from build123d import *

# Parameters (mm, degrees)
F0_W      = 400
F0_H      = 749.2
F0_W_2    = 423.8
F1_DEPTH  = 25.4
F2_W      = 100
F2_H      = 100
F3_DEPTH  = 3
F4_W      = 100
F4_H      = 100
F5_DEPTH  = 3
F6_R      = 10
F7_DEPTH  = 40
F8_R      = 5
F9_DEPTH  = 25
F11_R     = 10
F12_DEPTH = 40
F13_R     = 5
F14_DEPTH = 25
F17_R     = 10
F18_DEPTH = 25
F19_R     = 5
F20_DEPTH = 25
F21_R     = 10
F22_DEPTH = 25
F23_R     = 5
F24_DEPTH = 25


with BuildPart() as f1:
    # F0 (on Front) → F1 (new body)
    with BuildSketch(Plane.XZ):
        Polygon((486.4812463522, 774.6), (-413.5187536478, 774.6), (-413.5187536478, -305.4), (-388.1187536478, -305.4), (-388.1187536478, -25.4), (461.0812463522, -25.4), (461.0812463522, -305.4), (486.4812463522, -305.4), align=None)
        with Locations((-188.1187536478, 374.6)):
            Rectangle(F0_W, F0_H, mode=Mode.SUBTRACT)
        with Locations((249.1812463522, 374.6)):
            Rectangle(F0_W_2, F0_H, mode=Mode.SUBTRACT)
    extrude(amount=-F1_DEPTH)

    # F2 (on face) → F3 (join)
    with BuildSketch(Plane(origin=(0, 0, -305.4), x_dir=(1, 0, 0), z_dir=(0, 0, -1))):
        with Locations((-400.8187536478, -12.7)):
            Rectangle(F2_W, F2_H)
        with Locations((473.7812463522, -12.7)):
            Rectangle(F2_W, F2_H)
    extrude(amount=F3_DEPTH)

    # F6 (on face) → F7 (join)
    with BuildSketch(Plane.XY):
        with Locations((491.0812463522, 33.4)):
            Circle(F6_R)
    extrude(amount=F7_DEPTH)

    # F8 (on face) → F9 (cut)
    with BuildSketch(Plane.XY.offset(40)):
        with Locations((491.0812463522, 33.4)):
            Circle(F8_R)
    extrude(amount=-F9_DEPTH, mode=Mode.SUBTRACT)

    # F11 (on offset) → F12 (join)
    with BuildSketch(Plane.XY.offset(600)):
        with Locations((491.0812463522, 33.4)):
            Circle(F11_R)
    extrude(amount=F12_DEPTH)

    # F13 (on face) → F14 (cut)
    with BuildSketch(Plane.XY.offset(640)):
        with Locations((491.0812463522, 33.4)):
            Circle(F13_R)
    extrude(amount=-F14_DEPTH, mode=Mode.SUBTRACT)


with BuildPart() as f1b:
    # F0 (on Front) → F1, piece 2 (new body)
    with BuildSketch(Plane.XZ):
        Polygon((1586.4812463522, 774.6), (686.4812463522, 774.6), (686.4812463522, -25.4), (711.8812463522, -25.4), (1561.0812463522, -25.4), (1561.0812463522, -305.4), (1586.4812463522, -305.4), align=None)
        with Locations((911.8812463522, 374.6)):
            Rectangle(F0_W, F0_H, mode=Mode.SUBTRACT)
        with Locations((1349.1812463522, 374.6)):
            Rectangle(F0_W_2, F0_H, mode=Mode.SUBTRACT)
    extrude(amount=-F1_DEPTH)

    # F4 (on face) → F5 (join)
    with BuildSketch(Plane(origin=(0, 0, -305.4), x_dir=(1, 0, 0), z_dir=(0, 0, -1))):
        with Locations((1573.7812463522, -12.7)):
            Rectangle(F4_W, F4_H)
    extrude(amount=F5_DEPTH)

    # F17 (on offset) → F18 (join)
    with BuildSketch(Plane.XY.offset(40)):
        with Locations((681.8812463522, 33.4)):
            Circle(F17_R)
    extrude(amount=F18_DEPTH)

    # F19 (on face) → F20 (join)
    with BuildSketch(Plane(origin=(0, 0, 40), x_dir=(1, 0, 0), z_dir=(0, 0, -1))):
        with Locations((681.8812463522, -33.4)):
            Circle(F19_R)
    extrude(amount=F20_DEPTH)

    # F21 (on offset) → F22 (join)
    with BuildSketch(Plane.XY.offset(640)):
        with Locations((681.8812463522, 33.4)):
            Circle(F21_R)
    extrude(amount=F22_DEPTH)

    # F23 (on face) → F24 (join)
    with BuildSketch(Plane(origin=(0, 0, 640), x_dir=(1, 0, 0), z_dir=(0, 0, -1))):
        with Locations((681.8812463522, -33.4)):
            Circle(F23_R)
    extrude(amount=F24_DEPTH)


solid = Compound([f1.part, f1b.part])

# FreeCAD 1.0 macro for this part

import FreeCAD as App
import Part
import Sketcher

V = App.Vector

doc = App.newDocument("Part")
body = doc.addObject("PartDesign::Body", "Body")

sketch1 = body.newObject("Sketcher::SketchObject", "Sketch")
sketch1.AttachmentSupport = (doc.getObject("XZ_Plane"), [""])
sketch1.MapMode = "FlatFace"
sketch1.addGeometry(Part.LineSegment(V(486, 775, 0), V(-414, 775, 0)), False)
sketch1.addGeometry(Part.LineSegment(V(-414, 775, 0), V(-414, -305, 0)), False)
sketch1.addGeometry(Part.LineSegment(V(-414, -305, 0), V(-388, -305, 0)), False)
sketch1.addGeometry(Part.LineSegment(V(-388, -305, 0), V(-388, -25, 0)), False)
sketch1.addGeometry(Part.LineSegment(V(-388, -25, 0), V(461, -25, 0)), False)
sketch1.addGeometry(Part.LineSegment(V(461, -25, 0), V(461, -305, 0)), False)
sketch1.addGeometry(Part.LineSegment(V(461, -305, 0), V(486, -305, 0)), False)
sketch1.addGeometry(Part.LineSegment(V(486, -305, 0), V(486, 775, 0)), False)
sketch1.addGeometry(Part.LineSegment(V(12, 0, 0), V(-388, 0, 0)), False)
sketch1.addGeometry(Part.LineSegment(V(-388, 0, 0), V(-388, 749, 0)), False)
sketch1.addGeometry(Part.LineSegment(V(-388, 749, 0), V(12, 749, 0)), False)
sketch1.addGeometry(Part.LineSegment(V(12, 749, 0), V(12, 0, 0)), False)
sketch1.addGeometry(Part.LineSegment(V(461, 0, 0), V(37, 0, 0)), False)
sketch1.addGeometry(Part.LineSegment(V(37, 0, 0), V(37, 749, 0)), False)
sketch1.addGeometry(Part.LineSegment(V(37, 749, 0), V(461, 749, 0)), False)
sketch1.addGeometry(Part.LineSegment(V(461, 749, 0), V(461, 0, 0)), False)
sketch1.addConstraint(Sketcher.Constraint("Coincident", 0, 2, 1, 1))
sketch1.addConstraint(Sketcher.Constraint("Coincident", 1, 2, 2, 1))
sketch1.addConstraint(Sketcher.Constraint("Coincident", 2, 2, 3, 1))
sketch1.addConstraint(Sketcher.Constraint("Coincident", 3, 2, 4, 1))
sketch1.addConstraint(Sketcher.Constraint("Coincident", 4, 2, 5, 1))
sketch1.addConstraint(Sketcher.Constraint("Coincident", 5, 2, 6, 1))
sketch1.addConstraint(Sketcher.Constraint("Coincident", 6, 2, 7, 1))
sketch1.addConstraint(Sketcher.Constraint("Coincident", 7, 2, 0, 1))
sketch1.addConstraint(Sketcher.Constraint("Coincident", 8, 2, 9, 1))
sketch1.addConstraint(Sketcher.Constraint("Coincident", 9, 2, 10, 1))
sketch1.addConstraint(Sketcher.Constraint("Coincident", 10, 2, 11, 1))
sketch1.addConstraint(Sketcher.Constraint("Coincident", 11, 2, 8, 1))
sketch1.addConstraint(Sketcher.Constraint("Coincident", 12, 2, 13, 1))
sketch1.addConstraint(Sketcher.Constraint("Coincident", 13, 2, 14, 1))
sketch1.addConstraint(Sketcher.Constraint("Coincident", 14, 2, 15, 1))
sketch1.addConstraint(Sketcher.Constraint("Coincident", 15, 2, 12, 1))
sketch1.addConstraint(Sketcher.Constraint("Horizontal", 0))
sketch1.addConstraint(Sketcher.Constraint("Vertical", 1))
sketch1.addConstraint(Sketcher.Constraint("Horizontal", 2))
sketch1.addConstraint(Sketcher.Constraint("Vertical", 3))
sketch1.addConstraint(Sketcher.Constraint("Horizontal", 4))
sketch1.addConstraint(Sketcher.Constraint("Vertical", 5))
sketch1.addConstraint(Sketcher.Constraint("Horizontal", 6))
sketch1.addConstraint(Sketcher.Constraint("Vertical", 7))
sketch1.addConstraint(Sketcher.Constraint("Horizontal", 8))
sketch1.addConstraint(Sketcher.Constraint("Vertical", 9))
sketch1.addConstraint(Sketcher.Constraint("Horizontal", 10))
sketch1.addConstraint(Sketcher.Constraint("Vertical", 11))
sketch1.addConstraint(Sketcher.Constraint("Horizontal", 12))
sketch1.addConstraint(Sketcher.Constraint("Vertical", 13))
sketch1.addConstraint(Sketcher.Constraint("Horizontal", 14))
sketch1.addConstraint(Sketcher.Constraint("Vertical", 15))
sketch1.addConstraint(Sketcher.Constraint("PointOnObject", 8, 2, -1))
sketch1.addConstraint(Sketcher.Constraint("PointOnObject", 12, 2, -1))
sketch1.addConstraint(Sketcher.Constraint("Horizontal", 2, 2, 5, 2))
sketch1.addConstraint(Sketcher.Constraint("Horizontal", 10, 2, 13, 2))
sketch1.addConstraint(Sketcher.Constraint("Vertical", 3, 2, 8, 2))
sketch1.addConstraint(Sketcher.Constraint("Vertical", 5, 2, 14, 2))
sketch1.addConstraint(Sketcher.Constraint("Equal", 2, 6))
sketch1.addConstraint(Sketcher.Constraint("DistanceX", 0, 2, 0, 1, 900.0))
sketch1.addConstraint(Sketcher.Constraint("DistanceX", 8, 2, 8, 1, 400.0))
sketch1.addConstraint(Sketcher.Constraint("DistanceY", 1, 2, 1, 1, 1080.0))
sketch1.addConstraint(Sketcher.Constraint("DistanceY", 3, 1, 3, 2, 280.0))
sketch1.addConstraint(Sketcher.Constraint("DistanceX", 2, 1, 2, 2, 25.4))
sketch1.addConstraint(Sketcher.Constraint("DistanceX", 12, 2, 12, 1, 423.8))
sketch1.addConstraint(Sketcher.Constraint("DistanceY", 9, 1, 9, 2, 749.2))
sketch1.addConstraint(Sketcher.Constraint("DistanceY", -1, 1, 0, 2, 774.6))
sketch1.addConstraint(Sketcher.Constraint("DistanceX", 0, 2, -1, 1, 413.518754))
pad1 = body.newObject("PartDesign::Pad", "Pad")
pad1.Profile = sketch1
pad1.Length = 25.4
pad1.Reversed = True

sketch2 = body.newObject("Sketcher::SketchObject", "Sketch001")
sketch2.AttachmentSupport = (doc.getObject("XY_Plane"), [""])
sketch2.MapMode = "FlatFace"
sketch2.AttachmentOffset = App.Placement(V(0, 0, -305.4), App.Rotation())
sketch2.addGeometry(Part.LineSegment(V(-451, -37, 0), V(-451, 63, 0)), False)
sketch2.addGeometry(Part.LineSegment(V(-451, 63, 0), V(-351, 63, 0)), False)
sketch2.addGeometry(Part.LineSegment(V(-351, 63, 0), V(-351, -37, 0)), False)
sketch2.addGeometry(Part.LineSegment(V(-351, -37, 0), V(-451, -37, 0)), False)
sketch2.addGeometry(Part.LineSegment(V(424, -37, 0), V(424, 63, 0)), False)
sketch2.addGeometry(Part.LineSegment(V(424, 63, 0), V(524, 63, 0)), False)
sketch2.addGeometry(Part.LineSegment(V(524, 63, 0), V(524, -37, 0)), False)
sketch2.addGeometry(Part.LineSegment(V(524, -37, 0), V(424, -37, 0)), False)
sketch2.addConstraint(Sketcher.Constraint("Coincident", 0, 2, 1, 1))
sketch2.addConstraint(Sketcher.Constraint("Coincident", 1, 2, 2, 1))
sketch2.addConstraint(Sketcher.Constraint("Coincident", 2, 2, 3, 1))
sketch2.addConstraint(Sketcher.Constraint("Coincident", 3, 2, 0, 1))
sketch2.addConstraint(Sketcher.Constraint("Coincident", 4, 2, 5, 1))
sketch2.addConstraint(Sketcher.Constraint("Coincident", 5, 2, 6, 1))
sketch2.addConstraint(Sketcher.Constraint("Coincident", 6, 2, 7, 1))
sketch2.addConstraint(Sketcher.Constraint("Coincident", 7, 2, 4, 1))
sketch2.addConstraint(Sketcher.Constraint("Vertical", 0))
sketch2.addConstraint(Sketcher.Constraint("Horizontal", 1))
sketch2.addConstraint(Sketcher.Constraint("Vertical", 2))
sketch2.addConstraint(Sketcher.Constraint("Horizontal", 3))
sketch2.addConstraint(Sketcher.Constraint("Vertical", 4))
sketch2.addConstraint(Sketcher.Constraint("Horizontal", 5))
sketch2.addConstraint(Sketcher.Constraint("Vertical", 6))
sketch2.addConstraint(Sketcher.Constraint("Horizontal", 7))
sketch2.addConstraint(Sketcher.Constraint("Horizontal", 1, 2, 4, 2))
sketch2.addConstraint(Sketcher.Constraint("Horizontal", 3, 2, 6, 2))
sketch2.addConstraint(Sketcher.Constraint("Equal", 3, 5))
sketch2.addConstraint(Sketcher.Constraint("Equal", 7, 0))
sketch2.addConstraint(Sketcher.Constraint("DistanceX", 1, 1, 1, 2, 100.0))
sketch2.addConstraint(Sketcher.Constraint("DistanceY", -1, 1, 0, 2, 62.7))
sketch2.addConstraint(Sketcher.Constraint("DistanceX", 1, 2, 4, 2, 774.6))
sketch2.addConstraint(Sketcher.Constraint("DistanceX", 0, 2, -1, 1, 450.818754))
pad2 = body.newObject("PartDesign::Pad", "Pad001")
pad2.Profile = sketch2
pad2.Length = 3
pad2.Reversed = True

sketch3 = body.newObject("Sketcher::SketchObject", "Sketch002")
sketch3.AttachmentSupport = (doc.getObject("XY_Plane"), [""])
sketch3.MapMode = "FlatFace"
sketch3.addGeometry(Part.Circle(V(491, 33, 0), V(0, 0, 1), 10), False)
sketch3.addConstraint(Sketcher.Constraint("Diameter", 0, 20.0))
sketch3.addConstraint(Sketcher.Constraint("DistanceY", -1, 1, 0, 3, 33.4))
sketch3.addConstraint(Sketcher.Constraint("DistanceX", -1, 1, 0, 3, 491.081246))
pad3 = body.newObject("PartDesign::Pad", "Pad002")
pad3.Profile = sketch3
pad3.Length = 40

sketch4 = body.newObject("Sketcher::SketchObject", "Sketch003")
sketch4.AttachmentSupport = (doc.getObject("XY_Plane"), [""])
sketch4.MapMode = "FlatFace"
sketch4.AttachmentOffset = App.Placement(V(0, 0, 40), App.Rotation())
sketch4.addGeometry(Part.Circle(V(491, 33, 0), V(0, 0, 1), 5), False)
sketch4.addConstraint(Sketcher.Constraint("Diameter", 0, 10.0))
sketch4.addConstraint(Sketcher.Constraint("DistanceY", -1, 1, 0, 3, 33.4))
sketch4.addConstraint(Sketcher.Constraint("DistanceX", -1, 1, 0, 3, 491.081246))
pocket1 = body.newObject("PartDesign::Pocket", "Pocket")
pocket1.Profile = sketch4
pocket1.Length = 25

sketch5 = body.newObject("Sketcher::SketchObject", "Sketch004")
sketch5.AttachmentSupport = (doc.getObject("XY_Plane"), [""])
sketch5.MapMode = "FlatFace"
sketch5.AttachmentOffset = App.Placement(V(0, 0, 600), App.Rotation())
sketch5.addGeometry(Part.Circle(V(491, 33, 0), V(0, 0, 1), 10), False)
sketch5.addConstraint(Sketcher.Constraint("Diameter", 0, 20.0))
sketch5.addConstraint(Sketcher.Constraint("DistanceY", -1, 1, 0, 3, 33.4))
sketch5.addConstraint(Sketcher.Constraint("DistanceX", -1, 1, 0, 3, 491.081246))
pad4 = body.newObject("PartDesign::Pad", "Pad003")
pad4.Profile = sketch5
pad4.Length = 40

sketch6 = body.newObject("Sketcher::SketchObject", "Sketch005")
sketch6.AttachmentSupport = (doc.getObject("XY_Plane"), [""])
sketch6.MapMode = "FlatFace"
sketch6.AttachmentOffset = App.Placement(V(0, 0, 640), App.Rotation())
sketch6.addGeometry(Part.Circle(V(491, 33, 0), V(0, 0, 1), 5), False)
sketch6.addConstraint(Sketcher.Constraint("Diameter", 0, 10.0))
sketch6.addConstraint(Sketcher.Constraint("DistanceY", -1, 1, 0, 3, 33.4))
sketch6.addConstraint(Sketcher.Constraint("DistanceX", -1, 1, 0, 3, 491.081246))
pocket2 = body.newObject("PartDesign::Pocket", "Pocket001")
pocket2.Profile = sketch6
pocket2.Length = 25
body2 = doc.addObject("PartDesign::Body", "Body001")

sketch7 = body2.newObject("Sketcher::SketchObject", "Sketch006")
sketch7.AttachmentSupport = (doc.getObject("XZ_Plane001"), [""])
sketch7.MapMode = "FlatFace"
sketch7.addGeometry(Part.LineSegment(V(1586, 775, 0), V(686, 775, 0)), False)
sketch7.addGeometry(Part.LineSegment(V(686, 775, 0), V(686, -25, 0)), False)
sketch7.addGeometry(Part.LineSegment(V(686, -25, 0), V(1561, -25, 0)), False)
sketch7.addGeometry(Part.LineSegment(V(1561, -25, 0), V(1561, -305, 0)), False)
sketch7.addGeometry(Part.LineSegment(V(1561, -305, 0), V(1586, -305, 0)), False)
sketch7.addGeometry(Part.LineSegment(V(1586, -305, 0), V(1586, 775, 0)), False)
sketch7.addGeometry(Part.LineSegment(V(1112, 0, 0), V(712, 0, 0)), False)
sketch7.addGeometry(Part.LineSegment(V(712, 0, 0), V(712, 749, 0)), False)
sketch7.addGeometry(Part.LineSegment(V(712, 749, 0), V(1112, 749, 0)), False)
sketch7.addGeometry(Part.LineSegment(V(1112, 749, 0), V(1112, 0, 0)), False)
sketch7.addGeometry(Part.LineSegment(V(1561, 0, 0), V(1137, 0, 0)), False)
sketch7.addGeometry(Part.LineSegment(V(1137, 0, 0), V(1137, 749, 0)), False)
sketch7.addGeometry(Part.LineSegment(V(1137, 749, 0), V(1561, 749, 0)), False)
sketch7.addGeometry(Part.LineSegment(V(1561, 749, 0), V(1561, 0, 0)), False)
sketch7.addConstraint(Sketcher.Constraint("Coincident", 0, 2, 1, 1))
sketch7.addConstraint(Sketcher.Constraint("Coincident", 1, 2, 2, 1))
sketch7.addConstraint(Sketcher.Constraint("Coincident", 2, 2, 3, 1))
sketch7.addConstraint(Sketcher.Constraint("Coincident", 3, 2, 4, 1))
sketch7.addConstraint(Sketcher.Constraint("Coincident", 4, 2, 5, 1))
sketch7.addConstraint(Sketcher.Constraint("Coincident", 5, 2, 0, 1))
sketch7.addConstraint(Sketcher.Constraint("Coincident", 6, 2, 7, 1))
sketch7.addConstraint(Sketcher.Constraint("Coincident", 7, 2, 8, 1))
sketch7.addConstraint(Sketcher.Constraint("Coincident", 8, 2, 9, 1))
sketch7.addConstraint(Sketcher.Constraint("Coincident", 9, 2, 6, 1))
sketch7.addConstraint(Sketcher.Constraint("Coincident", 10, 2, 11, 1))
sketch7.addConstraint(Sketcher.Constraint("Coincident", 11, 2, 12, 1))
sketch7.addConstraint(Sketcher.Constraint("Coincident", 12, 2, 13, 1))
sketch7.addConstraint(Sketcher.Constraint("Coincident", 13, 2, 10, 1))
sketch7.addConstraint(Sketcher.Constraint("Horizontal", 0))
sketch7.addConstraint(Sketcher.Constraint("Vertical", 1))
sketch7.addConstraint(Sketcher.Constraint("Horizontal", 2))
sketch7.addConstraint(Sketcher.Constraint("Vertical", 3))
sketch7.addConstraint(Sketcher.Constraint("Horizontal", 4))
sketch7.addConstraint(Sketcher.Constraint("Vertical", 5))
sketch7.addConstraint(Sketcher.Constraint("Horizontal", 6))
sketch7.addConstraint(Sketcher.Constraint("Vertical", 7))
sketch7.addConstraint(Sketcher.Constraint("Horizontal", 8))
sketch7.addConstraint(Sketcher.Constraint("Vertical", 9))
sketch7.addConstraint(Sketcher.Constraint("Horizontal", 10))
sketch7.addConstraint(Sketcher.Constraint("Vertical", 11))
sketch7.addConstraint(Sketcher.Constraint("Horizontal", 12))
sketch7.addConstraint(Sketcher.Constraint("Vertical", 13))
sketch7.addConstraint(Sketcher.Constraint("PointOnObject", 6, 2, -1))
sketch7.addConstraint(Sketcher.Constraint("PointOnObject", 10, 2, -1))
sketch7.addConstraint(Sketcher.Constraint("Horizontal", 8, 2, 11, 2))
sketch7.addConstraint(Sketcher.Constraint("Vertical", 3, 2, 12, 2))
sketch7.addConstraint(Sketcher.Constraint("DistanceX", 0, 2, 0, 1, 900.0))
sketch7.addConstraint(Sketcher.Constraint("DistanceX", 6, 2, 6, 1, 400.0))
sketch7.addConstraint(Sketcher.Constraint("DistanceY", 1, 2, 1, 1, 800.0))
sketch7.addConstraint(Sketcher.Constraint("DistanceY", 3, 2, 3, 1, 280.0))
sketch7.addConstraint(Sketcher.Constraint("DistanceX", 2, 1, 2, 2, 874.6))
sketch7.addConstraint(Sketcher.Constraint("DistanceX", 10, 2, 10, 1, 423.8))
sketch7.addConstraint(Sketcher.Constraint("DistanceY", 7, 1, 7, 2, 749.2))
sketch7.addConstraint(Sketcher.Constraint("DistanceY", -1, 1, 0, 2, 774.6))
sketch7.addConstraint(Sketcher.Constraint("DistanceX", 1, 2, 6, 2, 25.4))
sketch7.addConstraint(Sketcher.Constraint("DistanceX", -1, 1, 0, 2, 686.481246))
pad5 = body2.newObject("PartDesign::Pad", "Pad004")
pad5.Profile = sketch7
pad5.Length = 25.4
pad5.Reversed = True

sketch8 = body2.newObject("Sketcher::SketchObject", "Sketch007")
sketch8.AttachmentSupport = (doc.getObject("XY_Plane001"), [""])
sketch8.MapMode = "FlatFace"
sketch8.AttachmentOffset = App.Placement(V(0, 0, -305.4), App.Rotation())
sketch8.addGeometry(Part.LineSegment(V(1524, -37, 0), V(1524, 63, 0)), False)
sketch8.addGeometry(Part.LineSegment(V(1524, 63, 0), V(1624, 63, 0)), False)
sketch8.addGeometry(Part.LineSegment(V(1624, 63, 0), V(1624, -37, 0)), False)
sketch8.addGeometry(Part.LineSegment(V(1624, -37, 0), V(1524, -37, 0)), False)
sketch8.addConstraint(Sketcher.Constraint("Coincident", 0, 2, 1, 1))
sketch8.addConstraint(Sketcher.Constraint("Coincident", 1, 2, 2, 1))
sketch8.addConstraint(Sketcher.Constraint("Coincident", 2, 2, 3, 1))
sketch8.addConstraint(Sketcher.Constraint("Coincident", 3, 2, 0, 1))
sketch8.addConstraint(Sketcher.Constraint("Vertical", 0))
sketch8.addConstraint(Sketcher.Constraint("Horizontal", 1))
sketch8.addConstraint(Sketcher.Constraint("Vertical", 2))
sketch8.addConstraint(Sketcher.Constraint("Horizontal", 3))
sketch8.addConstraint(Sketcher.Constraint("Equal", 3, 0))
sketch8.addConstraint(Sketcher.Constraint("DistanceX", 1, 1, 1, 2, 100.0))
sketch8.addConstraint(Sketcher.Constraint("DistanceY", -1, 1, 0, 2, 62.7))
sketch8.addConstraint(Sketcher.Constraint("DistanceX", -1, 1, 0, 2, 1523.781246))
pad6 = body2.newObject("PartDesign::Pad", "Pad005")
pad6.Profile = sketch8
pad6.Length = 3
pad6.Reversed = True

sketch9 = body2.newObject("Sketcher::SketchObject", "Sketch008")
sketch9.AttachmentSupport = (doc.getObject("XY_Plane001"), [""])
sketch9.MapMode = "FlatFace"
sketch9.AttachmentOffset = App.Placement(V(0, 0, 40), App.Rotation())
sketch9.addGeometry(Part.Circle(V(682, 33, 0), V(0, 0, 1), 10), False)
sketch9.addConstraint(Sketcher.Constraint("Diameter", 0, 20.0))
sketch9.addConstraint(Sketcher.Constraint("DistanceY", -1, 1, 0, 3, 33.4))
sketch9.addConstraint(Sketcher.Constraint("DistanceX", -1, 1, 0, 3, 681.881246))
pad7 = body2.newObject("PartDesign::Pad", "Pad006")
pad7.Profile = sketch9
pad7.Length = 25

sketch10 = body2.newObject("Sketcher::SketchObject", "Sketch009")
sketch10.AttachmentSupport = (doc.getObject("XY_Plane001"), [""])
sketch10.MapMode = "FlatFace"
sketch10.AttachmentOffset = App.Placement(V(0, 0, 40), App.Rotation())
sketch10.addGeometry(Part.Circle(V(682, 33, 0), V(0, 0, 1), 5), False)
sketch10.addConstraint(Sketcher.Constraint("Diameter", 0, 10.0))
sketch10.addConstraint(Sketcher.Constraint("DistanceY", -1, 1, 0, 3, 33.4))
sketch10.addConstraint(Sketcher.Constraint("DistanceX", -1, 1, 0, 3, 681.881246))
pad8 = body2.newObject("PartDesign::Pad", "Pad007")
pad8.Profile = sketch10
pad8.Length = 25
pad8.Reversed = True

sketch11 = body2.newObject("Sketcher::SketchObject", "Sketch010")
sketch11.AttachmentSupport = (doc.getObject("XY_Plane001"), [""])
sketch11.MapMode = "FlatFace"
sketch11.AttachmentOffset = App.Placement(V(0, 0, 640), App.Rotation())
sketch11.addGeometry(Part.Circle(V(682, 33, 0), V(0, 0, 1), 10), False)
sketch11.addConstraint(Sketcher.Constraint("Diameter", 0, 20.0))
sketch11.addConstraint(Sketcher.Constraint("DistanceY", -1, 1, 0, 3, 33.4))
sketch11.addConstraint(Sketcher.Constraint("DistanceX", -1, 1, 0, 3, 681.881246))
pad9 = body2.newObject("PartDesign::Pad", "Pad008")
pad9.Profile = sketch11
pad9.Length = 25

sketch12 = body2.newObject("Sketcher::SketchObject", "Sketch011")
sketch12.AttachmentSupport = (doc.getObject("XY_Plane001"), [""])
sketch12.MapMode = "FlatFace"
sketch12.AttachmentOffset = App.Placement(V(0, 0, 640), App.Rotation())
sketch12.addGeometry(Part.Circle(V(682, 33, 0), V(0, 0, 1), 5), False)
sketch12.addConstraint(Sketcher.Constraint("Diameter", 0, 10.0))
sketch12.addConstraint(Sketcher.Constraint("DistanceY", -1, 1, 0, 3, 33.4))
sketch12.addConstraint(Sketcher.Constraint("DistanceX", -1, 1, 0, 3, 681.881246))
pad10 = body2.newObject("PartDesign::Pad", "Pad009")
pad10.Profile = sketch12
pad10.Length = 25
pad10.Reversed = True

doc.recompute()
